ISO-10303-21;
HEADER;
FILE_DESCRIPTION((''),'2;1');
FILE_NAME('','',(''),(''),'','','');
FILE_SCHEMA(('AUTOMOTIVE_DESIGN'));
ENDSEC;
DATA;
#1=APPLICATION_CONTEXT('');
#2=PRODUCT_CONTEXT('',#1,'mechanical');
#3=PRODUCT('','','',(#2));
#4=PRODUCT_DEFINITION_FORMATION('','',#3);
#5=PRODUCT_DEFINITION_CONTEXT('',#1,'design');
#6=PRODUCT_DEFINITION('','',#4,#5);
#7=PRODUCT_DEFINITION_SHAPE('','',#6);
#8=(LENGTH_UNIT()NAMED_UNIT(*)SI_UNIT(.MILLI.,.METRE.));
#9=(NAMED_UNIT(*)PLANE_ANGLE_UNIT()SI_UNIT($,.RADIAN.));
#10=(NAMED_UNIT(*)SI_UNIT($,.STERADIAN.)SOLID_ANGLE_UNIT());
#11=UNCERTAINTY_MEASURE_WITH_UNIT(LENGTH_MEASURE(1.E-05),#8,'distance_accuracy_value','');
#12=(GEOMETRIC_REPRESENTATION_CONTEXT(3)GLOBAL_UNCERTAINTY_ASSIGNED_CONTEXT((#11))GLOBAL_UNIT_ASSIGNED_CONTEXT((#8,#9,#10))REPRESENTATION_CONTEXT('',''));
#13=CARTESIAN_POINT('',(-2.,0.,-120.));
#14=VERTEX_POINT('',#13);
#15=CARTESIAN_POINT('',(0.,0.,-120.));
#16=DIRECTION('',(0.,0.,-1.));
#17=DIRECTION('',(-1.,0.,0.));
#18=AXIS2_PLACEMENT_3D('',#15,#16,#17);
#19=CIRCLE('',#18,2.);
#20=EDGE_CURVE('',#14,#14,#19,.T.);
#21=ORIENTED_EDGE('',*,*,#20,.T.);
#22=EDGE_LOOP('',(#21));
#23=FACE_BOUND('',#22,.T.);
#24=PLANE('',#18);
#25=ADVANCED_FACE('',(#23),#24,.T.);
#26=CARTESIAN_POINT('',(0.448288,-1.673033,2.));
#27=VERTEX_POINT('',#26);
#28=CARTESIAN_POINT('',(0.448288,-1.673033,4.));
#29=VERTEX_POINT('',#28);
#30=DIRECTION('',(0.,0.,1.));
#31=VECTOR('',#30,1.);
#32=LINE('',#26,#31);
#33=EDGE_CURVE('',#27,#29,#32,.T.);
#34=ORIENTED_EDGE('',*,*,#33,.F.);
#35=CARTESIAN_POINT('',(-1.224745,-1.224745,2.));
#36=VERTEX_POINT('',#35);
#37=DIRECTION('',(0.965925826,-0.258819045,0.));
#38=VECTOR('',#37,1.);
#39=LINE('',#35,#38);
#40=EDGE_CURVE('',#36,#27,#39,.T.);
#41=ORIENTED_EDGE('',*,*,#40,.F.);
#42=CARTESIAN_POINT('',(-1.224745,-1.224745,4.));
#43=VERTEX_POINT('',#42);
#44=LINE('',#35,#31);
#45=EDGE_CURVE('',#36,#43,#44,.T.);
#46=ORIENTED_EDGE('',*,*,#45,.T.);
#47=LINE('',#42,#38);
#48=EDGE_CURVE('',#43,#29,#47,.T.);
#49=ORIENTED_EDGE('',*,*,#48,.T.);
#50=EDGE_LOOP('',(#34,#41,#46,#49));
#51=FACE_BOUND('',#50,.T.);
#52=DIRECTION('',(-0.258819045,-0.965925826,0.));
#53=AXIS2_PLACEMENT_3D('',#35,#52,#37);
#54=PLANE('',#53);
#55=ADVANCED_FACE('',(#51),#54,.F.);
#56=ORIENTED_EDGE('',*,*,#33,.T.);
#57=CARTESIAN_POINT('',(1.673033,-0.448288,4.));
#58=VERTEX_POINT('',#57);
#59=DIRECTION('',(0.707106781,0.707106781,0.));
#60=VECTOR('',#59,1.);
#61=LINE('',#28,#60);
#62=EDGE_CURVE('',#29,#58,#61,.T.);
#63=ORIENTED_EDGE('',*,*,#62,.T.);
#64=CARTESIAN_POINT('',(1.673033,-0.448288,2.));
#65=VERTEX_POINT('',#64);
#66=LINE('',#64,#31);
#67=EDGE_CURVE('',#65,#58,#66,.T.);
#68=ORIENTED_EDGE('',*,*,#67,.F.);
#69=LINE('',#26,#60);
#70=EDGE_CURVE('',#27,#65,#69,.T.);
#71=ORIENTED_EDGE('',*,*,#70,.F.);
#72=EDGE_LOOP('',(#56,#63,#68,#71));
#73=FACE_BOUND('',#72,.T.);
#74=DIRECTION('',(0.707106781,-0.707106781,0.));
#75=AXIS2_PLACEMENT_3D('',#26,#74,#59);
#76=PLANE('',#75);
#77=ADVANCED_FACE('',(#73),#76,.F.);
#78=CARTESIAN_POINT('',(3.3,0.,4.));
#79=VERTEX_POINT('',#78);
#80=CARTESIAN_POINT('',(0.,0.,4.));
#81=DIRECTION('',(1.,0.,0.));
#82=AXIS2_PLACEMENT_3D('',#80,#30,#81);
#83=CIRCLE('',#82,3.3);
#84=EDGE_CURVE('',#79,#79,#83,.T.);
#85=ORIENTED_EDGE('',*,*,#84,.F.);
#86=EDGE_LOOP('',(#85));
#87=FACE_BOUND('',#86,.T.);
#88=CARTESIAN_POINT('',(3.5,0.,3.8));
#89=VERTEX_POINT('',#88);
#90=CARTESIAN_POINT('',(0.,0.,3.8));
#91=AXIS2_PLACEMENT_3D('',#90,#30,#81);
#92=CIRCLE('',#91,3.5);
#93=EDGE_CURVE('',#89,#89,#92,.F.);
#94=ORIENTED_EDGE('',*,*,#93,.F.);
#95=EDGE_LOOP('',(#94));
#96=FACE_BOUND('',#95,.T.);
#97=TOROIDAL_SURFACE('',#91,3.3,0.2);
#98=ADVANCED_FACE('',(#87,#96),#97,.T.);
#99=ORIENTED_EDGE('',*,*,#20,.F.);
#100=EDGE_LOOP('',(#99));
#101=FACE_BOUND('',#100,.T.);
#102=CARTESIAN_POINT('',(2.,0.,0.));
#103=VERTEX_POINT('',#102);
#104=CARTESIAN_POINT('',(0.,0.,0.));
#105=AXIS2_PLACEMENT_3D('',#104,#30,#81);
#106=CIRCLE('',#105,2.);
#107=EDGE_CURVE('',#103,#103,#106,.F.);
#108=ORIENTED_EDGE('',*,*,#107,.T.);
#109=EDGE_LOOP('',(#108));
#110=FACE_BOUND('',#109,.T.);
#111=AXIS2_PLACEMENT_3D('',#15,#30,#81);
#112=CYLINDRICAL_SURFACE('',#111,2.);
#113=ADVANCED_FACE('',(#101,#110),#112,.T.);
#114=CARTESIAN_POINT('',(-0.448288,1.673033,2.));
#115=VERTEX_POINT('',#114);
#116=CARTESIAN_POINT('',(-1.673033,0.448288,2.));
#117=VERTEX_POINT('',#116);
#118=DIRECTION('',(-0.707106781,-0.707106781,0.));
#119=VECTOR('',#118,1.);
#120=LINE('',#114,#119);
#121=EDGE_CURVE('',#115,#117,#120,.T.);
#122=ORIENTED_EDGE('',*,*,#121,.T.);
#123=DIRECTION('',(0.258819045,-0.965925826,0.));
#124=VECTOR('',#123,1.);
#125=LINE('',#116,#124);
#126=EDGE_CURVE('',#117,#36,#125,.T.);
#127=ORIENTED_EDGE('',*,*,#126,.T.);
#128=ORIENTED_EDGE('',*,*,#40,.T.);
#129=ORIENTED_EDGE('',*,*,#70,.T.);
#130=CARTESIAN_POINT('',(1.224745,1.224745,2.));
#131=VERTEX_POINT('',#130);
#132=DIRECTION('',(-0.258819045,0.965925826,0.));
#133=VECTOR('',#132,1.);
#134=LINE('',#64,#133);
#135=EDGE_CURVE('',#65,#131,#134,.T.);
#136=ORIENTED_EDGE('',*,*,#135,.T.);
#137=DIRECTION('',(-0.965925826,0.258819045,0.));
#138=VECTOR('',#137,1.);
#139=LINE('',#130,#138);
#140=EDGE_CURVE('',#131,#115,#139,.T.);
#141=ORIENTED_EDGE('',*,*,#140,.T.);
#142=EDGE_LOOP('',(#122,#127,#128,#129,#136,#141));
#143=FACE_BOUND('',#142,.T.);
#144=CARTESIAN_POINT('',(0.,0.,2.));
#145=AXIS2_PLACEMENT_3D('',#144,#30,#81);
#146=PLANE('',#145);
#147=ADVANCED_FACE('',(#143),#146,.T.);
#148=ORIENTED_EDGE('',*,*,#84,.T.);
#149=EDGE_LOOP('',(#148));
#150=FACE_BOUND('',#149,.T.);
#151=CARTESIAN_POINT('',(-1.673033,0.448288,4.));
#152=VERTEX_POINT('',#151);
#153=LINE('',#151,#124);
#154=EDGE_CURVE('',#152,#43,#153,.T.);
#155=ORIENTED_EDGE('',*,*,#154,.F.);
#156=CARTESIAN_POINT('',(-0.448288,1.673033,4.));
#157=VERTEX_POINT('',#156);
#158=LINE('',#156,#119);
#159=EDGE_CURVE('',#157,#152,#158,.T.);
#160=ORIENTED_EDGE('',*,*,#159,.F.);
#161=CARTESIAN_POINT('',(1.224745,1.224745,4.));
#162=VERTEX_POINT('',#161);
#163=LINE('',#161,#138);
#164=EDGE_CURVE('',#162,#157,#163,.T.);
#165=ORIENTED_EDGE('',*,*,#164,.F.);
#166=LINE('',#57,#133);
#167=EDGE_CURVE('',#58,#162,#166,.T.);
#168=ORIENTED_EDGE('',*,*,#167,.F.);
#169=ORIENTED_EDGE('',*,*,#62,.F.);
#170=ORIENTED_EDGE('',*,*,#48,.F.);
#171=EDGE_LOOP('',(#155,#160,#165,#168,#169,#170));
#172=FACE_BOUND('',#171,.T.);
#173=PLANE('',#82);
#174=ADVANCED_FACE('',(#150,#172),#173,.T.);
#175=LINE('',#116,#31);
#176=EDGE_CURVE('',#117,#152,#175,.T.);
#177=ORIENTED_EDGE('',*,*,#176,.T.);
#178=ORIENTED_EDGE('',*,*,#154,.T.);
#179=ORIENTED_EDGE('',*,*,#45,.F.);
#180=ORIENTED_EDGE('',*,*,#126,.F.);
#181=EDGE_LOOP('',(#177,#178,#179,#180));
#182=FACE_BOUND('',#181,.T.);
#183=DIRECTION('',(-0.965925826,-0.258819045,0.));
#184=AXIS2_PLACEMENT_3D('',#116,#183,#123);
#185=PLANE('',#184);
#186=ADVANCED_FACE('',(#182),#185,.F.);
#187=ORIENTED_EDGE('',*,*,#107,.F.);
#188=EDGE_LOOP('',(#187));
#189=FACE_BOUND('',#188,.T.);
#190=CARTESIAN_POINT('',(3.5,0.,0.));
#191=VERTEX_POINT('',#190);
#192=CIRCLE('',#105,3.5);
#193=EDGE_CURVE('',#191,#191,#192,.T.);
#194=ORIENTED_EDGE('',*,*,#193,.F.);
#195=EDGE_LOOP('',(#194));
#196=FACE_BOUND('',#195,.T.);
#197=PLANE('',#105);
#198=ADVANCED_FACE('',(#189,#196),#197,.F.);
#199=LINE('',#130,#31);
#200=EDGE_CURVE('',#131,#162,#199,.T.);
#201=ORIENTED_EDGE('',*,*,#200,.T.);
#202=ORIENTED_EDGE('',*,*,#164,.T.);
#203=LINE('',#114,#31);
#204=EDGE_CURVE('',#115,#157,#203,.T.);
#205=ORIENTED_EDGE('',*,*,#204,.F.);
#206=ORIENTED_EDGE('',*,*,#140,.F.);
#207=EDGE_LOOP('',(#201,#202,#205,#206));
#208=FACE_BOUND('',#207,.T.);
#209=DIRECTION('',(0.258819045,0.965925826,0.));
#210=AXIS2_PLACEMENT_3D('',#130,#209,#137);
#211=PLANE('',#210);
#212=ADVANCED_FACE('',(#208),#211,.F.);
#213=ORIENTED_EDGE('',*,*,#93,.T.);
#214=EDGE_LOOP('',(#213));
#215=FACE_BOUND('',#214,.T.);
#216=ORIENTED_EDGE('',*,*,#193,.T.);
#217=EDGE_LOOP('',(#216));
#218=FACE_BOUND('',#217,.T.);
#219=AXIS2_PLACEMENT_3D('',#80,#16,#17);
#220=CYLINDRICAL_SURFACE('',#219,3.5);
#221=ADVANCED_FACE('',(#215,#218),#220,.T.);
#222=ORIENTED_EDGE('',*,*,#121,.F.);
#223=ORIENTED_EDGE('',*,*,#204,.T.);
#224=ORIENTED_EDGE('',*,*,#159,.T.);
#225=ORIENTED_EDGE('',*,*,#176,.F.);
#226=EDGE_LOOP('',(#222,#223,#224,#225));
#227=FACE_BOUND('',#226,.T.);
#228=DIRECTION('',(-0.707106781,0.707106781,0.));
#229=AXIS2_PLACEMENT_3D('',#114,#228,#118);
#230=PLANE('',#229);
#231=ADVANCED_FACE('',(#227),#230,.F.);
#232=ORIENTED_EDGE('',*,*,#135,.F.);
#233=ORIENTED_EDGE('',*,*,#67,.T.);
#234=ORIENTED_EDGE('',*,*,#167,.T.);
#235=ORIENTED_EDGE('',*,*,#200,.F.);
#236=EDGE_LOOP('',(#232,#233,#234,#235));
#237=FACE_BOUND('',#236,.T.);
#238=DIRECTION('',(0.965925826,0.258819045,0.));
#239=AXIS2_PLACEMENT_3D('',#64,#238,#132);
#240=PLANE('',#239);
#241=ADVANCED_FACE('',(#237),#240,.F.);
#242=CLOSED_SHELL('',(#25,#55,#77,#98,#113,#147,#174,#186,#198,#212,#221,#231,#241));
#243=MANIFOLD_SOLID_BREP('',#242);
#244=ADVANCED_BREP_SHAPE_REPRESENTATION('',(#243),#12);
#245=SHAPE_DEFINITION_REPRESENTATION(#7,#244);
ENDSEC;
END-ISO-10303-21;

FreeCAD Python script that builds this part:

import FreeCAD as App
import Part
import Sketcher
Q = App.Units.Quantity


def edges_at(feature, points):
    """Names of the edges that pass closest to the given points."""
    edges = feature.Shape.Edges
    near = lambda p: min(range(len(edges)), key=lambda i: edges[i].distToShape(Part.Vertex(*p))[0])
    return sorted({f"Edge{near(p) + 1}" for p in points})

doc = App.newDocument("Part")
body = doc.addObject("PartDesign::Body", "Body")

# Sketch on XY plane
sketch1 = body.newObject("Sketcher::SketchObject", "Sketch")
sketch1.AttachmentSupport = (doc.getObject("XY_Plane"), [""])
sketch1.MapMode = "FlatFace"
sketch1.addGeometry(Part.Circle(App.Vector(0, 0, 0), App.Vector(0, 0, 1), 3.5), False)
sketch1.addConstraint(Sketcher.Constraint("Coincident", 0, 3, -1, 1))
sketch1.addConstraint(Sketcher.Constraint("Diameter", 0, 7.0))
pad1 = body.newObject("PartDesign::Pad", "Pad")
pad1.Profile = sketch1
pad1.Length = 4

# Sketch on XY plane
sketch2 = body.newObject("Sketcher::SketchObject", "Sketch001")
sketch2.AttachmentSupport = (doc.getObject("XY_Plane"), [""])
sketch2.MapMode = "FlatFace"
sketch2.AttachmentOffset = App.Placement(App.Vector(0, 0, 4), App.Rotation())
sketch2.addGeometry(Part.LineSegment(App.Vector(-1.224745, -1.224745, 0), App.Vector(0.448288, -1.673033, 0)), False)
sketch2.addGeometry(Part.LineSegment(App.Vector(0.448288, -1.673033, 0), App.Vector(1.673033, -0.448288, 0)), False)
sketch2.addGeometry(Part.LineSegment(App.Vector(1.673033, -0.448288, 0), App.Vector(1.224745, 1.224745, 0)), False)
sketch2.addGeometry(Part.LineSegment(App.Vector(1.224745, 1.224745, 0), App.Vector(-0.448288, 1.673033, 0)), False)
sketch2.addGeometry(Part.LineSegment(App.Vector(-0.448288, 1.673033, 0), App.Vector(-1.673033, 0.448288, 0)), False)
sketch2.addGeometry(Part.LineSegment(App.Vector(-1.673033, 0.448288, 0), App.Vector(-1.224745, -1.224745, 0)), False)
sketch2.addConstraint(Sketcher.Constraint("Coincident", 0, 2, 1, 1))
sketch2.addConstraint(Sketcher.Constraint("Coincident", 1, 2, 2, 1))
sketch2.addConstraint(Sketcher.Constraint("Coincident", 2, 2, 3, 1))
sketch2.addConstraint(Sketcher.Constraint("Coincident", 3, 2, 4, 1))
sketch2.addConstraint(Sketcher.Constraint("Coincident", 4, 2, 5, 1))
sketch2.addConstraint(Sketcher.Constraint("Coincident", 5, 2, 0, 1))
sketch2.addConstraint(Sketcher.Constraint("Symmetric", 0, 2, 3, 2, -1, 1))
sketch2.addConstraint(Sketcher.Constraint("Symmetric", 1, 2, 4, 2, -1, 1))
sketch2.addConstraint(Sketcher.Constraint("Symmetric", 2, 2, 5, 2, -1, 1))
sketch2.addConstraint(Sketcher.Constraint("Equal", 0, 1))
sketch2.addConstraint(Sketcher.Constraint("Equal", 1, 2))
sketch2.addConstraint(Sketcher.Constraint("Angle", 0, Q("-15 deg")))
sketch2.addConstraint(Sketcher.Constraint("Angle", 1, Q("45 deg")))
sketch2.addConstraint(Sketcher.Constraint("Angle", 2, Q("105 deg")))
sketch2.addConstraint(Sketcher.Constraint("Distance", 0, 1.732051))
pocket1 = body.newObject("PartDesign::Pocket", "Pocket")
pocket1.Profile = sketch2
pocket1.Length = 2

# Sketch on XY plane
sketch3 = body.newObject("Sketcher::SketchObject", "Sketch002")
sketch3.AttachmentSupport = (doc.getObject("XY_Plane"), [""])
sketch3.MapMode = "FlatFace"
sketch3.addGeometry(Part.Circle(App.Vector(0, 0, 0), App.Vector(0, 0, 1), 2), False)
sketch3.addConstraint(Sketcher.Constraint("Coincident", 0, 3, -1, 1))
sketch3.addConstraint(Sketcher.Constraint("Diameter", 0, 4.0))
pad2 = body.newObject("PartDesign::Pad", "Pad001")
pad2.Profile = sketch3
pad2.Length = 120
pad2.Reversed = True
doc.recompute()

fillet = body.newObject("PartDesign::Fillet", "Fillet")
fillet.Base = (pad2, edges_at(pad2, [(-3.5, 0, 4)]))
fillet.Radius = 0.2

doc.recompute()
